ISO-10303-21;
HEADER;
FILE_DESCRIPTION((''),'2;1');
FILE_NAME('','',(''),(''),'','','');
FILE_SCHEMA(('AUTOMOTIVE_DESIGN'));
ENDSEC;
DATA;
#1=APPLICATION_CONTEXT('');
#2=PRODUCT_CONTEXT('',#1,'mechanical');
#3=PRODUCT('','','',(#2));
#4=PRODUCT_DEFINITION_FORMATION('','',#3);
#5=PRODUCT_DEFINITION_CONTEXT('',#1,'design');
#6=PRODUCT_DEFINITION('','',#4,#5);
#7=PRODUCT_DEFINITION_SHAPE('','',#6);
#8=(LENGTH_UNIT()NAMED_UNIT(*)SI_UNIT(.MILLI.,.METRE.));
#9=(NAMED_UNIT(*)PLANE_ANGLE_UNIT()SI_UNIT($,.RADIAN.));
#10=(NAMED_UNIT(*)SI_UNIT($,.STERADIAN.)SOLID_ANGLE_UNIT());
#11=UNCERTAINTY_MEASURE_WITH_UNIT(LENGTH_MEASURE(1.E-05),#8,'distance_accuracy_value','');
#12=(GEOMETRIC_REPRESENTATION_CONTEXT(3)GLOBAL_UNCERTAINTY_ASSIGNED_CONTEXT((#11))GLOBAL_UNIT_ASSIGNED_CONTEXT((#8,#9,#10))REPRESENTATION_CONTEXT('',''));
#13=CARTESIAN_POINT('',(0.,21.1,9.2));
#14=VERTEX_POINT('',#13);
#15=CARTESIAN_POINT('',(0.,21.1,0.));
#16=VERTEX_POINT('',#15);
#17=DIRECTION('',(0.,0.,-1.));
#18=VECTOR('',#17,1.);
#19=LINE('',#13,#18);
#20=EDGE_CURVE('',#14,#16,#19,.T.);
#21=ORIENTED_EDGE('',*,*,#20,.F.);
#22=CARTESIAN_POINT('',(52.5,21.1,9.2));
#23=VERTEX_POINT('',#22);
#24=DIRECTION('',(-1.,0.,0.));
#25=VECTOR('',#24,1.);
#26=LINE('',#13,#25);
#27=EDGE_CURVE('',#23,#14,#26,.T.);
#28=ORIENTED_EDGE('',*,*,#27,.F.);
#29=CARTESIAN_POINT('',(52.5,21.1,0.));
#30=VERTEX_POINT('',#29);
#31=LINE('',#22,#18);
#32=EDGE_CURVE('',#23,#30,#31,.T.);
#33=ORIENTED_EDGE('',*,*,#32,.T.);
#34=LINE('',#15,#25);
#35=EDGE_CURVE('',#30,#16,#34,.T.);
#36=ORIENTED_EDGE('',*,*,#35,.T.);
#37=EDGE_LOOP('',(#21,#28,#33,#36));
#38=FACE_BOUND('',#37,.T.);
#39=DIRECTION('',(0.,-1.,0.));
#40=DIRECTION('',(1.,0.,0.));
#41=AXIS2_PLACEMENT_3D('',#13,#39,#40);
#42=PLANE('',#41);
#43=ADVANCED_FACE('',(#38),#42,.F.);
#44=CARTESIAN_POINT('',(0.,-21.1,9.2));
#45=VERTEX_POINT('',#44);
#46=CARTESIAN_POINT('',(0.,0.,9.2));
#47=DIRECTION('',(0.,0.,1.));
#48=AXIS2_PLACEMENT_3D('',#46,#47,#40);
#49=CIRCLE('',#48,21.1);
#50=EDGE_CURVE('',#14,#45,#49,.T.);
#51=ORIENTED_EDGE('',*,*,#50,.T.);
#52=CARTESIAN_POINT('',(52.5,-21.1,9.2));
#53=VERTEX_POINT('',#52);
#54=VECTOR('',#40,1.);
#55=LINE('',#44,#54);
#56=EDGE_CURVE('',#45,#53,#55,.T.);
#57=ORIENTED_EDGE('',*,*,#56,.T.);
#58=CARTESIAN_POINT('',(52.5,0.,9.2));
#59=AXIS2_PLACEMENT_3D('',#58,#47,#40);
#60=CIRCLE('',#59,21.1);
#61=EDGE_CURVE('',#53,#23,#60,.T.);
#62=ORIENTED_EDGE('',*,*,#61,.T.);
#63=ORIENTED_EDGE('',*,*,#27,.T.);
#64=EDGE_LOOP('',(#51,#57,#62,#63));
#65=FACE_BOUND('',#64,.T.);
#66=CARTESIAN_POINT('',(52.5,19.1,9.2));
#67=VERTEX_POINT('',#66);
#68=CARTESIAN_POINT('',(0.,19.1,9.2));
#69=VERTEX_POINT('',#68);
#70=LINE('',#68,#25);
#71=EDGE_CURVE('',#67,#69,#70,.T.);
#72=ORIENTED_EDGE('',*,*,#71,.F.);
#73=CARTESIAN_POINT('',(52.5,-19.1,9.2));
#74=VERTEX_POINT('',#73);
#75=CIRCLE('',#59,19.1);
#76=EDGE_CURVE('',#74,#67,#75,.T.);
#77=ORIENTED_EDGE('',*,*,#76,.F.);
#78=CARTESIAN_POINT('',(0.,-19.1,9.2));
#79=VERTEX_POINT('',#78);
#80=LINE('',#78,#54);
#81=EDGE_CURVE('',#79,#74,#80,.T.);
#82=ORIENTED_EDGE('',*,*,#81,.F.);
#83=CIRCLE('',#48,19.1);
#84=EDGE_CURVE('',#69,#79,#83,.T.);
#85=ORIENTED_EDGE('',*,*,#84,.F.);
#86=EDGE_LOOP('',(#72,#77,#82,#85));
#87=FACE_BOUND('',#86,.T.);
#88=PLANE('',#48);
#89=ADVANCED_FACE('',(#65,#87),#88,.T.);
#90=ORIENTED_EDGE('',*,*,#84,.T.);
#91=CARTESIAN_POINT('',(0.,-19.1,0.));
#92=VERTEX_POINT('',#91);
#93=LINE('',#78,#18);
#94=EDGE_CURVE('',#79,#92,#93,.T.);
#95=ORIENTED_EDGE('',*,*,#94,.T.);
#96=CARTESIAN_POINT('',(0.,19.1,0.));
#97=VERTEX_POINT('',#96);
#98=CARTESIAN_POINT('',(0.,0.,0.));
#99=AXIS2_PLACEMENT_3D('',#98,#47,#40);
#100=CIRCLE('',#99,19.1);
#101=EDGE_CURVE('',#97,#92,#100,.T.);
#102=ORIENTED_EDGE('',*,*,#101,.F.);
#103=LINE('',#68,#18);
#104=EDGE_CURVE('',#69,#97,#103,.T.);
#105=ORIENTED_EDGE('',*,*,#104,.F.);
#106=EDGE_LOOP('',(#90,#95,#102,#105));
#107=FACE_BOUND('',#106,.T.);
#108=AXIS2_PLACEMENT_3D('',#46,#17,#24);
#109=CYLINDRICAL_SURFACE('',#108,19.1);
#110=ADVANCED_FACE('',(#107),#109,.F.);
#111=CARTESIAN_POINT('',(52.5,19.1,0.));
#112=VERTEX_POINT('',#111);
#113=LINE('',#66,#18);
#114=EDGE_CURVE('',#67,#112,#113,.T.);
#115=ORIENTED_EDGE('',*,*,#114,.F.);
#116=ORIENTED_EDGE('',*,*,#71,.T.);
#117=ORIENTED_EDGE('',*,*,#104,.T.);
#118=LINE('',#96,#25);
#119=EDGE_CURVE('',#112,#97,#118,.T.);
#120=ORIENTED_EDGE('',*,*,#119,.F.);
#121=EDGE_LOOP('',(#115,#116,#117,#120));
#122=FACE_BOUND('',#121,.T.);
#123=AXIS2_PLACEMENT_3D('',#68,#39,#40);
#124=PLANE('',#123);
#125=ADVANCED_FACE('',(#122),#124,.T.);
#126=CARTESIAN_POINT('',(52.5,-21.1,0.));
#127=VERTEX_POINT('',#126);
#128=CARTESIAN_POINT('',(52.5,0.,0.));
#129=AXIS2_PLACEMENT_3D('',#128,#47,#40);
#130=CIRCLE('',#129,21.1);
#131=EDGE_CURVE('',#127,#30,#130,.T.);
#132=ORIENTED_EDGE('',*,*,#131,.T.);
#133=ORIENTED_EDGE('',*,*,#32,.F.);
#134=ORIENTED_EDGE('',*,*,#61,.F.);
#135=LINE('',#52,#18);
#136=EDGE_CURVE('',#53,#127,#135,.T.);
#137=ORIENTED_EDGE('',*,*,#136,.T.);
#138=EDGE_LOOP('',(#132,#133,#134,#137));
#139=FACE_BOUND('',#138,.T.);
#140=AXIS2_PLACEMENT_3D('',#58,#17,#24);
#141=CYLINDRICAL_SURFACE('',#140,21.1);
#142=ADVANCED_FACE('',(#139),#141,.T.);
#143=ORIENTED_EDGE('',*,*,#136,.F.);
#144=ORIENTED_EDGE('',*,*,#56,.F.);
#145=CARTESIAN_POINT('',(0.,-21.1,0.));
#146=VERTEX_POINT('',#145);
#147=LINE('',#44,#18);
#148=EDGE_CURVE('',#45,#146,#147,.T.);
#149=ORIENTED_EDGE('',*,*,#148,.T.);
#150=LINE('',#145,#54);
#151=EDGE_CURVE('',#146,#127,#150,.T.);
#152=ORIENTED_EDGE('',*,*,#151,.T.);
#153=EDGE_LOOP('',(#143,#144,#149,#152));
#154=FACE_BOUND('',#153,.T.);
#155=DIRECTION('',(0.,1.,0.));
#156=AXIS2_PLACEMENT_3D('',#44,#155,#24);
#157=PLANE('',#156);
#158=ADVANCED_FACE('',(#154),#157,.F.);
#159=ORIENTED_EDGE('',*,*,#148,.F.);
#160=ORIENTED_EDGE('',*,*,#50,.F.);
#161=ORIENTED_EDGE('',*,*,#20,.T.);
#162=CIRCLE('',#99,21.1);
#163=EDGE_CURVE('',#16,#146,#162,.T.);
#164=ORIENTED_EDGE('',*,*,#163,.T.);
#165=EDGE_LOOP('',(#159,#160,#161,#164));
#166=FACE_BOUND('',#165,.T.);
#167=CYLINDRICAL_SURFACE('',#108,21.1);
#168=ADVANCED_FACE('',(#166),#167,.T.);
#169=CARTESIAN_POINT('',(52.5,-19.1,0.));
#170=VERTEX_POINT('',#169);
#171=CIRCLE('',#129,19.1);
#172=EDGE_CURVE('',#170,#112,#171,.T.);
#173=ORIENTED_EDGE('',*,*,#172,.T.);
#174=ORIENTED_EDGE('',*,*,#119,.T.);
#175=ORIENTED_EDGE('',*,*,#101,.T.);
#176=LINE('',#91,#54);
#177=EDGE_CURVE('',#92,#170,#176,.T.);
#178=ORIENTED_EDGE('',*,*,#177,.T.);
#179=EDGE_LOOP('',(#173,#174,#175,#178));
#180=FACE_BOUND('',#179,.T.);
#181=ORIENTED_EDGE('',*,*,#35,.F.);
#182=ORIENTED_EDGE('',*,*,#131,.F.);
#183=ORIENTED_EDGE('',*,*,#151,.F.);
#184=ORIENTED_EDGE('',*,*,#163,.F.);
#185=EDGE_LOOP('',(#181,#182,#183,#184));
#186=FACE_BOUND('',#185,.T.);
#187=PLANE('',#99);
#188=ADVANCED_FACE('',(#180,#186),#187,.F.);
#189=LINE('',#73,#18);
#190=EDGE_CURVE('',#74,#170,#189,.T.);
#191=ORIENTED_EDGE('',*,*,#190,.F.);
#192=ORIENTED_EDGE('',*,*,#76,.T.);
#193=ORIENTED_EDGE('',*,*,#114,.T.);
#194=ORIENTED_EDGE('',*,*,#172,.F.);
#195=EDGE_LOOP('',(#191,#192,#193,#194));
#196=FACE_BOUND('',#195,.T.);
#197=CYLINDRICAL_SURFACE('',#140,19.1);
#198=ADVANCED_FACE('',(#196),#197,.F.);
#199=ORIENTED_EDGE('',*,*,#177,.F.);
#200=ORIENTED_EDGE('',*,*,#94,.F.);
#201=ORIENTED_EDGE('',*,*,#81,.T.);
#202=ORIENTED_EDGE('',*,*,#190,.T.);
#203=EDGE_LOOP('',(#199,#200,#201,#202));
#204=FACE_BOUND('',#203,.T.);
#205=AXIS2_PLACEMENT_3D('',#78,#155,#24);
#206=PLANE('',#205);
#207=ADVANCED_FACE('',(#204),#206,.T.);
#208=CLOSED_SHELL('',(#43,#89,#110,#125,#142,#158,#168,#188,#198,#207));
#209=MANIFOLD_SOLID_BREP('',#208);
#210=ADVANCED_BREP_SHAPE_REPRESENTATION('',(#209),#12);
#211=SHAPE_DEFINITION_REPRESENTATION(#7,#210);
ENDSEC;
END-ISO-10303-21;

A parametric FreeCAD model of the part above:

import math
import FreeCAD as App
import Part
import Sketcher

doc = App.newDocument("Part")
body = doc.addObject("PartDesign::Body", "Body")

sketch1 = body.newObject("Sketcher::SketchObject", "Sketch")
sketch1.AttachmentSupport = (doc.getObject("XY_Plane"), [""])
sketch1.MapMode = "FlatFace"
sketch1.addGeometry([
    Part.LineSegment(App.Vector(52, 21, 0), App.Vector(0, 21, 0)),
    Part.ArcOfCircle(Part.Circle(App.Vector(0, 0, 0), App.Vector(0, 0, 1), 21), math.radians(90), math.radians(270)),
    Part.LineSegment(App.Vector(0, -21, 0), App.Vector(52, -21, 0)),
    Part.ArcOfCircle(Part.Circle(App.Vector(52, 0, 0), App.Vector(0, 0, 1), 21), math.radians(-90), math.radians(90)),
    Part.LineSegment(App.Vector(0, 19, 0), App.Vector(52, 19, 0)),
    Part.ArcOfCircle(Part.Circle(App.Vector(52, 0, 0), App.Vector(0, 0, 1), 19), math.radians(-90), math.radians(90)),
    Part.LineSegment(App.Vector(52, -19, 0), App.Vector(0, -19, 0)),
    Part.ArcOfCircle(Part.Circle(App.Vector(0, 0, 0), App.Vector(0, 0, 1), 19), math.radians(90), math.radians(270)),
], False)
sketch1.addConstraint([
    Sketcher.Constraint("Tangent", 0, 2, 1, 1),
    Sketcher.Constraint("Tangent", 1, 2, 2, 1),
    Sketcher.Constraint("Tangent", 2, 2, 3, 1),
    Sketcher.Constraint("Tangent", 3, 2, 0, 1),
    Sketcher.Constraint("Tangent", 4, 2, 5, 2),
    Sketcher.Constraint("Tangent", 5, 1, 6, 1),
    Sketcher.Constraint("Tangent", 6, 2, 7, 2),
    Sketcher.Constraint("Tangent", 7, 1, 4, 1),
    Sketcher.Constraint("Horizontal", 0),
    Sketcher.Constraint("Horizontal", 2),
    Sketcher.Constraint("Horizontal", 4),
    Sketcher.Constraint("Horizontal", 6),
    Sketcher.Constraint("Coincident", 1, 3, -1, 1),
    Sketcher.Constraint("Coincident", 7, 3, -1, 1),
    Sketcher.Constraint("Vertical", 5, 3, 2, 2),
    Sketcher.Constraint("Radius", 1, 21.1),
    Sketcher.Constraint("Radius", 5, 19.1),
    Sketcher.Constraint("DistanceX", 0, 2, 0, 1, 52.5),
])
pad1 = body.newObject("PartDesign::Pad", "Pad")
pad1.Profile = sketch1
pad1.Length = 9.2

doc.recompute()
